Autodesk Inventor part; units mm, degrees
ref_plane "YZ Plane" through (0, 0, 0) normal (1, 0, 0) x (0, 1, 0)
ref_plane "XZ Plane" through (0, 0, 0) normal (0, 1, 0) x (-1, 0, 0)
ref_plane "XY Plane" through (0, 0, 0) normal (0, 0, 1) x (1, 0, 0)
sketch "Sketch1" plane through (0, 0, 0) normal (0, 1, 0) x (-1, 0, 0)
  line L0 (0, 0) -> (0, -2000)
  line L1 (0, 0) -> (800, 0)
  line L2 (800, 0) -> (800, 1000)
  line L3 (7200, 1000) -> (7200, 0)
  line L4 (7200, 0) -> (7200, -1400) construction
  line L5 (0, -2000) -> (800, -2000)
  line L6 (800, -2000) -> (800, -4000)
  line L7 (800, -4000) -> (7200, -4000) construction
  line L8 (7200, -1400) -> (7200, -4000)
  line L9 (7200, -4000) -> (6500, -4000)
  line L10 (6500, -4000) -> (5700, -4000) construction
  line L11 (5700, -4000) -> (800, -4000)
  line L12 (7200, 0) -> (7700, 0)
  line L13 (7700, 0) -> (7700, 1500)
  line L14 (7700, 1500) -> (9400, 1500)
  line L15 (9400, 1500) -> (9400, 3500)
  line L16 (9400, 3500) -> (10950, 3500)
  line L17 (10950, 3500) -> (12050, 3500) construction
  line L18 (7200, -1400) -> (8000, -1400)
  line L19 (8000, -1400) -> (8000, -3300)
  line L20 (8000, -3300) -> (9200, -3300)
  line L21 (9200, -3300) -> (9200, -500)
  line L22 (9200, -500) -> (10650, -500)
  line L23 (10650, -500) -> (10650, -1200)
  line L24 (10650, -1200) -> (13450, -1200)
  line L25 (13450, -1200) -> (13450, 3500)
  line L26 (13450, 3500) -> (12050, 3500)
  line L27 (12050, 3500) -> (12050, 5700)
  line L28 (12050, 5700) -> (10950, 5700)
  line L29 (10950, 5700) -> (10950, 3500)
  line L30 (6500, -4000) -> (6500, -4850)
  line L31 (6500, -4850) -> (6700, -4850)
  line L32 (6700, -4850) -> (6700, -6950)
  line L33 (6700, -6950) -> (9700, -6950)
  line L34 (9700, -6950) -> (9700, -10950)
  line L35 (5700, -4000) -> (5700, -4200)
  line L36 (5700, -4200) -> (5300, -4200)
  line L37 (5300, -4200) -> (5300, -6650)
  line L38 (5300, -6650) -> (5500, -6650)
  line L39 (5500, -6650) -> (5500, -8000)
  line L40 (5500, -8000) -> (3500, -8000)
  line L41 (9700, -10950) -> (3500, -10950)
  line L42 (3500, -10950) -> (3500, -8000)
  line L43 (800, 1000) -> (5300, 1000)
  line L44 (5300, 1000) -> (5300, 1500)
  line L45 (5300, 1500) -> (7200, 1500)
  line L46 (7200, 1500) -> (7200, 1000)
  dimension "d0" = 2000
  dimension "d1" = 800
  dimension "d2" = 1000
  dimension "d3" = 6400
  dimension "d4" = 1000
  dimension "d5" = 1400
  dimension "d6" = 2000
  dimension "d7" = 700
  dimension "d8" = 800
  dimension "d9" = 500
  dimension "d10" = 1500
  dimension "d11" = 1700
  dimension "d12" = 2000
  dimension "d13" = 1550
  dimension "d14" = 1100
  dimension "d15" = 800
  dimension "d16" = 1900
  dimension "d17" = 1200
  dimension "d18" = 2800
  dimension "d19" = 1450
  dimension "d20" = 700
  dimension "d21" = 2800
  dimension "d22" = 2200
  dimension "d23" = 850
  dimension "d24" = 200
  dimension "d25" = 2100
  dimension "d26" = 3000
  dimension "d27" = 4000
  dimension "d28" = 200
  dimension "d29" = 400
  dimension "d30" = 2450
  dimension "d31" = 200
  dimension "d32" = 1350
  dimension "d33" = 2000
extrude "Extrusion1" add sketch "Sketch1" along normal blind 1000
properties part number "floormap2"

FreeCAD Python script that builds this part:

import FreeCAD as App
import Part
import Sketcher


def add_polygon(sketch, points):
    """Adds a closed chain of lines whose ends are joined by coincident constraints."""
    first, n = sketch.GeometryCount, len(points)
    for a, b in zip(points, points[1:] + points[:1]):
        sketch.addGeometry(Part.LineSegment(App.Vector(*a, 0), App.Vector(*b, 0)), False)
    for i in range(n):
        sketch.addConstraint(Sketcher.Constraint("Coincident", first + i, 2, first + (i + 1) % n, 1))

doc = App.newDocument("Part")
params = doc.addObject("Spreadsheet::Sheet", "Params")
for row, (alias, value) in enumerate([
    ("sketch1_width", "800 mm"),
    ("sketch1_width2", "400 mm"),
    ("sketch1_width3", "200 mm"),
    ("sketch1_width4", "2000 mm"),
    ("sketch1_width5", "3000 mm"),
    ("pad1_length", "1000 mm"),
], start=1):
    params.set(f"A{row}", alias)
    params.set(f"B{row}", "=" + value)
    params.setAlias(f"B{row}", alias)

body = doc.addObject("PartDesign::Body", "Body")

# Sketch on XZ plane
sketch1 = body.newObject("Sketcher::SketchObject", "Sketch")
sketch1.AttachmentSupport = (doc.getObject("XZ_Plane"), [""])
sketch1.MapMode = "FlatFace"
add_polygon(sketch1, [(-800, 0), (0, 0), (0, -2000), (-800, -2000), (-800, -4000), (-5700, -4000), (-5700, -4200), (-5300, -4200), (-5300, -6650), (-5500, -6650), (-5500, -8000), (-3500, -8000), (-3500, -10950), (-9700, -10950), (-9700, -6950), (-6700, -6950), (-6700, -4850), (-6500, -4850), (-6500, -4000), (-7200, -4000), (-7200, -1400), (-8000, -1400), (-8000, -3300), (-9200, -3300), (-9200, -500), (-10650, -500), (-10650, -1200), (-13450, -1200), (-13450, 3500), (-12050, 3500), (-12050, 5700), (-10950, 5700), (-10950, 3500), (-9400, 3500), (-9400, 1500), (-7700, 1500), (-7700, 0), (-7200, 0), (-7200, 1500), (-5300, 1500), (-5300, 1000), (-800, 1000)])  # lines 0-41
sketch1.addConstraint([
    Sketcher.Constraint("Horizontal", 0),
    Sketcher.Constraint("Vertical", 1),
    Sketcher.Constraint("Horizontal", 2),
    Sketcher.Constraint("Vertical", 3),
    Sketcher.Constraint("Horizontal", 4),
    Sketcher.Constraint("Vertical", 5),
    Sketcher.Constraint("Horizontal", 6),
    Sketcher.Constraint("Vertical", 7),
    Sketcher.Constraint("Horizontal", 8),
    Sketcher.Constraint("Vertical", 9),
    Sketcher.Constraint("Horizontal", 10),
    Sketcher.Constraint("Vertical", 11),
    Sketcher.Constraint("Horizontal", 12),
    Sketcher.Constraint("Vertical", 13),
    Sketcher.Constraint("Horizontal", 14),
    Sketcher.Constraint("Vertical", 15),
    Sketcher.Constraint("Horizontal", 16),
    Sketcher.Constraint("Vertical", 17),
    Sketcher.Constraint("Horizontal", 18),
    Sketcher.Constraint("Vertical", 19),
    Sketcher.Constraint("Horizontal", 20),
    Sketcher.Constraint("Vertical", 21),
    Sketcher.Constraint("Horizontal", 22),
    Sketcher.Constraint("Vertical", 23),
    Sketcher.Constraint("Horizontal", 24),
    Sketcher.Constraint("Vertical", 25),
    Sketcher.Constraint("Horizontal", 26),
    Sketcher.Constraint("Vertical", 27),
    Sketcher.Constraint("Horizontal", 28),
    Sketcher.Constraint("Vertical", 29),
    Sketcher.Constraint("Horizontal", 30),
    Sketcher.Constraint("Vertical", 31),
    Sketcher.Constraint("Horizontal", 32),
    Sketcher.Constraint("Vertical", 33),
    Sketcher.Constraint("Horizontal", 34),
    Sketcher.Constraint("Vertical", 35),
    Sketcher.Constraint("Horizontal", 36),
    Sketcher.Constraint("Vertical", 37),
    Sketcher.Constraint("Horizontal", 38),
    Sketcher.Constraint("Vertical", 39),
    Sketcher.Constraint("Horizontal", 40),
    Sketcher.Constraint("Vertical", 41),
    Sketcher.Constraint("Coincident", 0, 2, -1, 1),
    Sketcher.Constraint("PointOnObject", 35, 2, -1),
    Sketcher.Constraint("Horizontal", 4, 2, 17, 2),
    Sketcher.Constraint("Horizontal", 28, 2, 31, 2),
    Sketcher.Constraint("Horizontal", 34, 2, 37, 2),
    Sketcher.Constraint("Vertical", 19, 2, 36, 2),
    Sketcher.Constraint("Vertical", 7, 2, 38, 2),
    Sketcher.Constraint("Vertical", 3, 2, 40, 2),
    Sketcher.Constraint("Equal", 8, 16),
    Sketcher.Constraint("Equal", 2, 20),
    Sketcher.Constraint("Equal", 10, 1),
    Sketcher.Constraint("Equal", 1, 3),
    Sketcher.Constraint("Equal", 16, 5),
    Sketcher.Constraint("Equal", 38, 21),
    Sketcher.Constraint("Equal", 26, 23),
    Sketcher.Constraint("Equal", 18, 25),
    Sketcher.Constraint("Equal", 3, 33),
    Sketcher.Constraint("Equal", 36, 39),
    Sketcher.Constraint("DistanceX", 0, 1, 0, 2, 800.0),
    Sketcher.Constraint("DistanceX", 6, 1, 6, 2, 400.0),
    Sketcher.Constraint("DistanceX", 8, 2, 8, 1, 200.0),
    Sketcher.Constraint("DistanceX", 10, 1, 10, 2, 2000.0),
    Sketcher.Constraint("DistanceX", 14, 1, 14, 2, 3000.0),
    Sketcher.Constraint("DistanceX", 18, 2, 18, 1, 700.0),
    Sketcher.Constraint("DistanceX", 22, 2, 22, 1, 1200.0),
    Sketcher.Constraint("DistanceX", 24, 2, 24, 1, 1450.0),
    Sketcher.Constraint("DistanceX", 26, 2, 26, 1, 2800.0),
    Sketcher.Constraint("DistanceX", 28, 1, 28, 2, 1400.0),
    Sketcher.Constraint("DistanceX", 30, 1, 30, 2, 1100.0),
    Sketcher.Constraint("DistanceX", 32, 1, 32, 2, 1550.0),
    Sketcher.Constraint("DistanceX", 34, 1, 34, 2, 1700.0),
    Sketcher.Constraint("DistanceX", 38, 1, 38, 2, 1900.0),
    Sketcher.Constraint("DistanceY", 7, 2, 7, 1, 2450.0),
    Sketcher.Constraint("DistanceY", 9, 2, 9, 1, 1350.0),
    Sketcher.Constraint("DistanceY", 13, 1, 13, 2, 4000.0),
    Sketcher.Constraint("DistanceY", 15, 1, 15, 2, 2100.0),
    Sketcher.Constraint("DistanceY", 17, 1, 17, 2, 850.0),
    Sketcher.Constraint("DistanceY", 29, 1, 29, 2, 2200.0),
    Sketcher.Constraint("DistanceY", 35, 2, 35, 1, 1500.0),
    Sketcher.Constraint("DistanceY", 19, 2, -1, 1, 1400.0),
    Sketcher.Constraint("DistanceX", 4, 2, 4, 1, 4900.0),
])
sketch1.setExpression("Constraints[102]", "Params.sketch1_width")
sketch1.setExpression("Constraints[103]", "Params.sketch1_width2")
sketch1.setExpression("Constraints[104]", "Params.sketch1_width3")
sketch1.setExpression("Constraints[105]", "Params.sketch1_width4")
sketch1.setExpression("Constraints[106]", "Params.sketch1_width5")
pad1 = body.newObject("PartDesign::Pad", "Pad")
pad1.Profile = sketch1
pad1.setExpression("Length", "Params.pad1_length")
pad1.Reversed = True

doc.recompute()
